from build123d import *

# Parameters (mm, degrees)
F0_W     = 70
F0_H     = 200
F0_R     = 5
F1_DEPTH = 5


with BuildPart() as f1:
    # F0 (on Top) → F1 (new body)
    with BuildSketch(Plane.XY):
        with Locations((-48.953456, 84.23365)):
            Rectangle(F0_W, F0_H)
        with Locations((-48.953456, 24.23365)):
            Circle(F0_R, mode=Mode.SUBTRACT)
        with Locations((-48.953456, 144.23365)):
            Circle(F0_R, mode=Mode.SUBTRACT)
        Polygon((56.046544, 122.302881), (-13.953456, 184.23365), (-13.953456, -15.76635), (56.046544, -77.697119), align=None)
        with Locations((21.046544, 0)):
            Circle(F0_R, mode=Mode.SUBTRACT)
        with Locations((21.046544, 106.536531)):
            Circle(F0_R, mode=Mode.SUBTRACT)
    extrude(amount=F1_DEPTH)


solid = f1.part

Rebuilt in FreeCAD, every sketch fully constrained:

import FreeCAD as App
import Part
import Sketcher
Q = App.Units.Quantity

doc = App.newDocument("Part")
body = doc.addObject("PartDesign::Body", "Body")

sketch1 = body.newObject("Sketcher::SketchObject", "Sketch")
sketch1.AttachmentSupport = (doc.getObject("XY_Plane"), [""])
sketch1.MapMode = "FlatFace"
sketch1.addGeometry([
    Part.LineSegment(App.Vector(-84, 184, 0), App.Vector(-84, -16, 0)),
    Part.LineSegment(App.Vector(-84, -16, 0), App.Vector(-14, -16, 0)),
    Part.LineSegment(App.Vector(-14, -16, 0), App.Vector(56, -78, 0)),
    Part.LineSegment(App.Vector(56, -78, 0), App.Vector(56, 122, 0)),
    Part.LineSegment(App.Vector(56, 122, 0), App.Vector(-14, 184, 0)),
    Part.LineSegment(App.Vector(-14, 184, 0), App.Vector(-84, 184, 0)),
    Part.Circle(App.Vector(-49, 24, 0), App.Vector(0, 0, 1), 5),
    Part.Circle(App.Vector(21, 0, 0), App.Vector(0, 0, 1), 5),
    Part.Circle(App.Vector(-49, 144, 0), App.Vector(0, 0, 1), 5),
    Part.Circle(App.Vector(21, 107, 0), App.Vector(0, 0, 1), 5),
], False)
sketch1.addConstraint([
    Sketcher.Constraint("Coincident", 0, 2, 1, 1),
    Sketcher.Constraint("Coincident", 1, 2, 2, 1),
    Sketcher.Constraint("Coincident", 2, 2, 3, 1),
    Sketcher.Constraint("Coincident", 3, 2, 4, 1),
    Sketcher.Constraint("Coincident", 4, 2, 5, 1),
    Sketcher.Constraint("Coincident", 5, 2, 0, 1),
    Sketcher.Constraint("Vertical", 0),
    Sketcher.Constraint("Horizontal", 1),
    Sketcher.Constraint("Vertical", 3),
    Sketcher.Constraint("Horizontal", 5),
    Sketcher.Constraint("Equal", 6, 7),
    Sketcher.Constraint("Equal", 7, 8),
    Sketcher.Constraint("Equal", 8, 9),
    Sketcher.Constraint("PointOnObject", 7, 3, -1),
    Sketcher.Constraint("Parallel", 2, 4),
    Sketcher.Constraint("Vertical", 6, 3, 8, 3),
    Sketcher.Constraint("Vertical", 7, 3, 9, 3),
    Sketcher.Constraint("Vertical", 1, 2, 4, 2),
    Sketcher.Constraint("Diameter", 6, Q("10 mm")),
    Sketcher.Constraint("DistanceX", 1, 1, 1, 2, Q("70 mm")),
    Sketcher.Constraint("DistanceY", 0, 2, 0, 1, Q("200 mm")),
    Sketcher.Constraint("Angle", 2, Q("-41.5 deg")),
    Sketcher.Constraint("DistanceX", 6, 3, 7, 3, Q("70 mm")),
    Sketcher.Constraint("DistanceY", 6, 3, 8, 3, Q("120 mm")),
    Sketcher.Constraint("DistanceX", 0, 2, 6, 3, Q("35 mm")),
    Sketcher.Constraint("DistanceY", 0, 2, 6, 3, Q("40 mm")),
    Sketcher.Constraint("DistanceX", 7, 3, 2, 2, Q("35 mm")),
    Sketcher.Constraint("DistanceY", -1, 1, 6, 3, Q("24.23365 mm")),
    Sketcher.Constraint("DistanceY", -1, 1, 9, 3, Q("106.536531 mm")),
    Sketcher.Constraint("DistanceX", 6, 3, -1, 1, Q("48.953456 mm")),
])
pad1 = body.newObject("PartDesign::Pad", "Pad")
pad1.Profile = sketch1
pad1.Length = 5

doc.recompute()
